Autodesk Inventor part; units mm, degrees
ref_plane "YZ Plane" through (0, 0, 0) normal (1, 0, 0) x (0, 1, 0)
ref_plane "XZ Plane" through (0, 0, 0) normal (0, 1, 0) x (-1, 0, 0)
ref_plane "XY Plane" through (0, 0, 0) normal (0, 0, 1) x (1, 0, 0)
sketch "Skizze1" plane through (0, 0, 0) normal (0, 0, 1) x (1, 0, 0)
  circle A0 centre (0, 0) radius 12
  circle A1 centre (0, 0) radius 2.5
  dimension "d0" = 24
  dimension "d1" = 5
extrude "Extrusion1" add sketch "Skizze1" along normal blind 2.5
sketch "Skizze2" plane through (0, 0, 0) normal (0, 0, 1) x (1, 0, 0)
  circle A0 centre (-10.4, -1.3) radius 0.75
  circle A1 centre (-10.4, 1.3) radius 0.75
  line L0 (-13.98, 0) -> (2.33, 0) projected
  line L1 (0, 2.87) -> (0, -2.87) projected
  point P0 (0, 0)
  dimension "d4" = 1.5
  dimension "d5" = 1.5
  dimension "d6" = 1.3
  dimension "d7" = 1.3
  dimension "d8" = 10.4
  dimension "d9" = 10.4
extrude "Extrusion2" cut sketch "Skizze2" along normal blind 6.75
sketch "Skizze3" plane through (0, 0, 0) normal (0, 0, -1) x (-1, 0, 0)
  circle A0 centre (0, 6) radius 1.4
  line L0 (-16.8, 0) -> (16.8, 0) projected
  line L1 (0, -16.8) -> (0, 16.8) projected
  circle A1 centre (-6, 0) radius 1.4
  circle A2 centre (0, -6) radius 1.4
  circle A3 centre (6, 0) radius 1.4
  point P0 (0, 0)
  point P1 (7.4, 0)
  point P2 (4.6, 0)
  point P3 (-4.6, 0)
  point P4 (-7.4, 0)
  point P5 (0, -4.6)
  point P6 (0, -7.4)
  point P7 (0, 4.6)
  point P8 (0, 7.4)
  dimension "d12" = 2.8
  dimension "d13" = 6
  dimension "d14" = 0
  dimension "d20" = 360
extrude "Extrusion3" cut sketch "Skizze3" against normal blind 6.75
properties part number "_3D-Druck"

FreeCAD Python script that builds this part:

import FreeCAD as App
import Part
import Sketcher
Q = App.Units.Quantity

doc = App.newDocument("Part")
body = doc.addObject("PartDesign::Body", "Body")

sketch1 = doc.addObject("Sketcher::SketchObject", "Sketch")
body.addObject(sketch1)
sketch1.AttachmentSupport = (doc.XY_Plane, [""])
sketch1.MapMode = "FlatFace"
sketch1.addGeometry([
    Part.Circle(App.Vector(0, 0, 0), App.Vector(0, 0, 1), 12),
    Part.Circle(App.Vector(0, 0, 0), App.Vector(0, 0, 1), 2.5),
], False)
sketch1.addConstraint([
    Sketcher.Constraint("Coincident", 0, 3, -1, 1),
    Sketcher.Constraint("Coincident", 1, 3, -1, 1),
    Sketcher.Constraint("Diameter", 0, Q("24 mm")),
    Sketcher.Constraint("Diameter", 1, Q("5 mm")),
])
pad1 = doc.addObject("PartDesign::Pad", "Pad")
body.addObject(pad1)
pad1.Profile = sketch1
pad1.Length = 2.5

sketch2 = doc.addObject("Sketcher::SketchObject", "Sketch001")
body.addObject(sketch2)
sketch2.AttachmentSupport = (doc.XY_Plane, [""])
sketch2.MapMode = "FlatFace"
sketch2.addGeometry([
    Part.Circle(App.Vector(-10.4, -1.3, 0), App.Vector(0, 0, 1), 0.8),
    Part.Circle(App.Vector(-10.4, 1.3, 0), App.Vector(0, 0, 1), 0.8),
], False)
sketch2.addConstraint([
    Sketcher.Constraint("Equal", 0, 1),
    Sketcher.Constraint("Symmetric", 0, 3, 1, 3, -1),
    Sketcher.Constraint("Diameter", 0, Q("1.5 mm")),
    Sketcher.Constraint("DistanceX", 0, 3, -1, 1, Q("10.4 mm")),
    Sketcher.Constraint("DistanceY", 0, 3, -1, 1, Q("1.3 mm")),
])
pocket1 = doc.addObject("PartDesign::Pocket", "Pocket")
body.addObject(pocket1)
pocket1.Profile = sketch2
pocket1.Length = 6.75
pocket1.Reversed = True

sketch3 = doc.addObject("Sketcher::SketchObject", "Sketch002")
body.addObject(sketch3)
sketch3.AttachmentSupport = (doc.XY_Plane, [""])
sketch3.MapMode = "FlatFace"
sketch3.addGeometry([
    Part.Circle(App.Vector(0, 6, 0), App.Vector(0, 0, 1), 1.4),
    Part.Circle(App.Vector(-6, 0, 0), App.Vector(0, 0, 1), 1.4),
    Part.Circle(App.Vector(0, -6, 0), App.Vector(0, 0, 1), 1.4),
    Part.Circle(App.Vector(6, 0, 0), App.Vector(0, 0, 1), 1.4),
], False)
sketch3.addConstraint([
    Sketcher.Constraint("Equal", 0, 1),
    Sketcher.Constraint("Equal", 1, 2),
    Sketcher.Constraint("Equal", 2, 3),
    Sketcher.Constraint("Symmetric", 0, 3, 2, 3, -1, 1),
    Sketcher.Constraint("Symmetric", 1, 3, 3, 3, -1, 1),
    Sketcher.Constraint("PointOnObject", 0, 3, -2),
    Sketcher.Constraint("PointOnObject", 1, 3, -1),
    Sketcher.Constraint("Diameter", 0, Q("2.8 mm")),
    Sketcher.Constraint("DistanceY", -1, 1, 0, 3, Q("6 mm")),
    Sketcher.Constraint("DistanceX", 1, 3, -1, 1, Q("6 mm")),
])
pocket2 = doc.addObject("PartDesign::Pocket", "Pocket001")
body.addObject(pocket2)
pocket2.Profile = sketch3
pocket2.Length = 6.75
pocket2.Reversed = True

doc.recompute()
